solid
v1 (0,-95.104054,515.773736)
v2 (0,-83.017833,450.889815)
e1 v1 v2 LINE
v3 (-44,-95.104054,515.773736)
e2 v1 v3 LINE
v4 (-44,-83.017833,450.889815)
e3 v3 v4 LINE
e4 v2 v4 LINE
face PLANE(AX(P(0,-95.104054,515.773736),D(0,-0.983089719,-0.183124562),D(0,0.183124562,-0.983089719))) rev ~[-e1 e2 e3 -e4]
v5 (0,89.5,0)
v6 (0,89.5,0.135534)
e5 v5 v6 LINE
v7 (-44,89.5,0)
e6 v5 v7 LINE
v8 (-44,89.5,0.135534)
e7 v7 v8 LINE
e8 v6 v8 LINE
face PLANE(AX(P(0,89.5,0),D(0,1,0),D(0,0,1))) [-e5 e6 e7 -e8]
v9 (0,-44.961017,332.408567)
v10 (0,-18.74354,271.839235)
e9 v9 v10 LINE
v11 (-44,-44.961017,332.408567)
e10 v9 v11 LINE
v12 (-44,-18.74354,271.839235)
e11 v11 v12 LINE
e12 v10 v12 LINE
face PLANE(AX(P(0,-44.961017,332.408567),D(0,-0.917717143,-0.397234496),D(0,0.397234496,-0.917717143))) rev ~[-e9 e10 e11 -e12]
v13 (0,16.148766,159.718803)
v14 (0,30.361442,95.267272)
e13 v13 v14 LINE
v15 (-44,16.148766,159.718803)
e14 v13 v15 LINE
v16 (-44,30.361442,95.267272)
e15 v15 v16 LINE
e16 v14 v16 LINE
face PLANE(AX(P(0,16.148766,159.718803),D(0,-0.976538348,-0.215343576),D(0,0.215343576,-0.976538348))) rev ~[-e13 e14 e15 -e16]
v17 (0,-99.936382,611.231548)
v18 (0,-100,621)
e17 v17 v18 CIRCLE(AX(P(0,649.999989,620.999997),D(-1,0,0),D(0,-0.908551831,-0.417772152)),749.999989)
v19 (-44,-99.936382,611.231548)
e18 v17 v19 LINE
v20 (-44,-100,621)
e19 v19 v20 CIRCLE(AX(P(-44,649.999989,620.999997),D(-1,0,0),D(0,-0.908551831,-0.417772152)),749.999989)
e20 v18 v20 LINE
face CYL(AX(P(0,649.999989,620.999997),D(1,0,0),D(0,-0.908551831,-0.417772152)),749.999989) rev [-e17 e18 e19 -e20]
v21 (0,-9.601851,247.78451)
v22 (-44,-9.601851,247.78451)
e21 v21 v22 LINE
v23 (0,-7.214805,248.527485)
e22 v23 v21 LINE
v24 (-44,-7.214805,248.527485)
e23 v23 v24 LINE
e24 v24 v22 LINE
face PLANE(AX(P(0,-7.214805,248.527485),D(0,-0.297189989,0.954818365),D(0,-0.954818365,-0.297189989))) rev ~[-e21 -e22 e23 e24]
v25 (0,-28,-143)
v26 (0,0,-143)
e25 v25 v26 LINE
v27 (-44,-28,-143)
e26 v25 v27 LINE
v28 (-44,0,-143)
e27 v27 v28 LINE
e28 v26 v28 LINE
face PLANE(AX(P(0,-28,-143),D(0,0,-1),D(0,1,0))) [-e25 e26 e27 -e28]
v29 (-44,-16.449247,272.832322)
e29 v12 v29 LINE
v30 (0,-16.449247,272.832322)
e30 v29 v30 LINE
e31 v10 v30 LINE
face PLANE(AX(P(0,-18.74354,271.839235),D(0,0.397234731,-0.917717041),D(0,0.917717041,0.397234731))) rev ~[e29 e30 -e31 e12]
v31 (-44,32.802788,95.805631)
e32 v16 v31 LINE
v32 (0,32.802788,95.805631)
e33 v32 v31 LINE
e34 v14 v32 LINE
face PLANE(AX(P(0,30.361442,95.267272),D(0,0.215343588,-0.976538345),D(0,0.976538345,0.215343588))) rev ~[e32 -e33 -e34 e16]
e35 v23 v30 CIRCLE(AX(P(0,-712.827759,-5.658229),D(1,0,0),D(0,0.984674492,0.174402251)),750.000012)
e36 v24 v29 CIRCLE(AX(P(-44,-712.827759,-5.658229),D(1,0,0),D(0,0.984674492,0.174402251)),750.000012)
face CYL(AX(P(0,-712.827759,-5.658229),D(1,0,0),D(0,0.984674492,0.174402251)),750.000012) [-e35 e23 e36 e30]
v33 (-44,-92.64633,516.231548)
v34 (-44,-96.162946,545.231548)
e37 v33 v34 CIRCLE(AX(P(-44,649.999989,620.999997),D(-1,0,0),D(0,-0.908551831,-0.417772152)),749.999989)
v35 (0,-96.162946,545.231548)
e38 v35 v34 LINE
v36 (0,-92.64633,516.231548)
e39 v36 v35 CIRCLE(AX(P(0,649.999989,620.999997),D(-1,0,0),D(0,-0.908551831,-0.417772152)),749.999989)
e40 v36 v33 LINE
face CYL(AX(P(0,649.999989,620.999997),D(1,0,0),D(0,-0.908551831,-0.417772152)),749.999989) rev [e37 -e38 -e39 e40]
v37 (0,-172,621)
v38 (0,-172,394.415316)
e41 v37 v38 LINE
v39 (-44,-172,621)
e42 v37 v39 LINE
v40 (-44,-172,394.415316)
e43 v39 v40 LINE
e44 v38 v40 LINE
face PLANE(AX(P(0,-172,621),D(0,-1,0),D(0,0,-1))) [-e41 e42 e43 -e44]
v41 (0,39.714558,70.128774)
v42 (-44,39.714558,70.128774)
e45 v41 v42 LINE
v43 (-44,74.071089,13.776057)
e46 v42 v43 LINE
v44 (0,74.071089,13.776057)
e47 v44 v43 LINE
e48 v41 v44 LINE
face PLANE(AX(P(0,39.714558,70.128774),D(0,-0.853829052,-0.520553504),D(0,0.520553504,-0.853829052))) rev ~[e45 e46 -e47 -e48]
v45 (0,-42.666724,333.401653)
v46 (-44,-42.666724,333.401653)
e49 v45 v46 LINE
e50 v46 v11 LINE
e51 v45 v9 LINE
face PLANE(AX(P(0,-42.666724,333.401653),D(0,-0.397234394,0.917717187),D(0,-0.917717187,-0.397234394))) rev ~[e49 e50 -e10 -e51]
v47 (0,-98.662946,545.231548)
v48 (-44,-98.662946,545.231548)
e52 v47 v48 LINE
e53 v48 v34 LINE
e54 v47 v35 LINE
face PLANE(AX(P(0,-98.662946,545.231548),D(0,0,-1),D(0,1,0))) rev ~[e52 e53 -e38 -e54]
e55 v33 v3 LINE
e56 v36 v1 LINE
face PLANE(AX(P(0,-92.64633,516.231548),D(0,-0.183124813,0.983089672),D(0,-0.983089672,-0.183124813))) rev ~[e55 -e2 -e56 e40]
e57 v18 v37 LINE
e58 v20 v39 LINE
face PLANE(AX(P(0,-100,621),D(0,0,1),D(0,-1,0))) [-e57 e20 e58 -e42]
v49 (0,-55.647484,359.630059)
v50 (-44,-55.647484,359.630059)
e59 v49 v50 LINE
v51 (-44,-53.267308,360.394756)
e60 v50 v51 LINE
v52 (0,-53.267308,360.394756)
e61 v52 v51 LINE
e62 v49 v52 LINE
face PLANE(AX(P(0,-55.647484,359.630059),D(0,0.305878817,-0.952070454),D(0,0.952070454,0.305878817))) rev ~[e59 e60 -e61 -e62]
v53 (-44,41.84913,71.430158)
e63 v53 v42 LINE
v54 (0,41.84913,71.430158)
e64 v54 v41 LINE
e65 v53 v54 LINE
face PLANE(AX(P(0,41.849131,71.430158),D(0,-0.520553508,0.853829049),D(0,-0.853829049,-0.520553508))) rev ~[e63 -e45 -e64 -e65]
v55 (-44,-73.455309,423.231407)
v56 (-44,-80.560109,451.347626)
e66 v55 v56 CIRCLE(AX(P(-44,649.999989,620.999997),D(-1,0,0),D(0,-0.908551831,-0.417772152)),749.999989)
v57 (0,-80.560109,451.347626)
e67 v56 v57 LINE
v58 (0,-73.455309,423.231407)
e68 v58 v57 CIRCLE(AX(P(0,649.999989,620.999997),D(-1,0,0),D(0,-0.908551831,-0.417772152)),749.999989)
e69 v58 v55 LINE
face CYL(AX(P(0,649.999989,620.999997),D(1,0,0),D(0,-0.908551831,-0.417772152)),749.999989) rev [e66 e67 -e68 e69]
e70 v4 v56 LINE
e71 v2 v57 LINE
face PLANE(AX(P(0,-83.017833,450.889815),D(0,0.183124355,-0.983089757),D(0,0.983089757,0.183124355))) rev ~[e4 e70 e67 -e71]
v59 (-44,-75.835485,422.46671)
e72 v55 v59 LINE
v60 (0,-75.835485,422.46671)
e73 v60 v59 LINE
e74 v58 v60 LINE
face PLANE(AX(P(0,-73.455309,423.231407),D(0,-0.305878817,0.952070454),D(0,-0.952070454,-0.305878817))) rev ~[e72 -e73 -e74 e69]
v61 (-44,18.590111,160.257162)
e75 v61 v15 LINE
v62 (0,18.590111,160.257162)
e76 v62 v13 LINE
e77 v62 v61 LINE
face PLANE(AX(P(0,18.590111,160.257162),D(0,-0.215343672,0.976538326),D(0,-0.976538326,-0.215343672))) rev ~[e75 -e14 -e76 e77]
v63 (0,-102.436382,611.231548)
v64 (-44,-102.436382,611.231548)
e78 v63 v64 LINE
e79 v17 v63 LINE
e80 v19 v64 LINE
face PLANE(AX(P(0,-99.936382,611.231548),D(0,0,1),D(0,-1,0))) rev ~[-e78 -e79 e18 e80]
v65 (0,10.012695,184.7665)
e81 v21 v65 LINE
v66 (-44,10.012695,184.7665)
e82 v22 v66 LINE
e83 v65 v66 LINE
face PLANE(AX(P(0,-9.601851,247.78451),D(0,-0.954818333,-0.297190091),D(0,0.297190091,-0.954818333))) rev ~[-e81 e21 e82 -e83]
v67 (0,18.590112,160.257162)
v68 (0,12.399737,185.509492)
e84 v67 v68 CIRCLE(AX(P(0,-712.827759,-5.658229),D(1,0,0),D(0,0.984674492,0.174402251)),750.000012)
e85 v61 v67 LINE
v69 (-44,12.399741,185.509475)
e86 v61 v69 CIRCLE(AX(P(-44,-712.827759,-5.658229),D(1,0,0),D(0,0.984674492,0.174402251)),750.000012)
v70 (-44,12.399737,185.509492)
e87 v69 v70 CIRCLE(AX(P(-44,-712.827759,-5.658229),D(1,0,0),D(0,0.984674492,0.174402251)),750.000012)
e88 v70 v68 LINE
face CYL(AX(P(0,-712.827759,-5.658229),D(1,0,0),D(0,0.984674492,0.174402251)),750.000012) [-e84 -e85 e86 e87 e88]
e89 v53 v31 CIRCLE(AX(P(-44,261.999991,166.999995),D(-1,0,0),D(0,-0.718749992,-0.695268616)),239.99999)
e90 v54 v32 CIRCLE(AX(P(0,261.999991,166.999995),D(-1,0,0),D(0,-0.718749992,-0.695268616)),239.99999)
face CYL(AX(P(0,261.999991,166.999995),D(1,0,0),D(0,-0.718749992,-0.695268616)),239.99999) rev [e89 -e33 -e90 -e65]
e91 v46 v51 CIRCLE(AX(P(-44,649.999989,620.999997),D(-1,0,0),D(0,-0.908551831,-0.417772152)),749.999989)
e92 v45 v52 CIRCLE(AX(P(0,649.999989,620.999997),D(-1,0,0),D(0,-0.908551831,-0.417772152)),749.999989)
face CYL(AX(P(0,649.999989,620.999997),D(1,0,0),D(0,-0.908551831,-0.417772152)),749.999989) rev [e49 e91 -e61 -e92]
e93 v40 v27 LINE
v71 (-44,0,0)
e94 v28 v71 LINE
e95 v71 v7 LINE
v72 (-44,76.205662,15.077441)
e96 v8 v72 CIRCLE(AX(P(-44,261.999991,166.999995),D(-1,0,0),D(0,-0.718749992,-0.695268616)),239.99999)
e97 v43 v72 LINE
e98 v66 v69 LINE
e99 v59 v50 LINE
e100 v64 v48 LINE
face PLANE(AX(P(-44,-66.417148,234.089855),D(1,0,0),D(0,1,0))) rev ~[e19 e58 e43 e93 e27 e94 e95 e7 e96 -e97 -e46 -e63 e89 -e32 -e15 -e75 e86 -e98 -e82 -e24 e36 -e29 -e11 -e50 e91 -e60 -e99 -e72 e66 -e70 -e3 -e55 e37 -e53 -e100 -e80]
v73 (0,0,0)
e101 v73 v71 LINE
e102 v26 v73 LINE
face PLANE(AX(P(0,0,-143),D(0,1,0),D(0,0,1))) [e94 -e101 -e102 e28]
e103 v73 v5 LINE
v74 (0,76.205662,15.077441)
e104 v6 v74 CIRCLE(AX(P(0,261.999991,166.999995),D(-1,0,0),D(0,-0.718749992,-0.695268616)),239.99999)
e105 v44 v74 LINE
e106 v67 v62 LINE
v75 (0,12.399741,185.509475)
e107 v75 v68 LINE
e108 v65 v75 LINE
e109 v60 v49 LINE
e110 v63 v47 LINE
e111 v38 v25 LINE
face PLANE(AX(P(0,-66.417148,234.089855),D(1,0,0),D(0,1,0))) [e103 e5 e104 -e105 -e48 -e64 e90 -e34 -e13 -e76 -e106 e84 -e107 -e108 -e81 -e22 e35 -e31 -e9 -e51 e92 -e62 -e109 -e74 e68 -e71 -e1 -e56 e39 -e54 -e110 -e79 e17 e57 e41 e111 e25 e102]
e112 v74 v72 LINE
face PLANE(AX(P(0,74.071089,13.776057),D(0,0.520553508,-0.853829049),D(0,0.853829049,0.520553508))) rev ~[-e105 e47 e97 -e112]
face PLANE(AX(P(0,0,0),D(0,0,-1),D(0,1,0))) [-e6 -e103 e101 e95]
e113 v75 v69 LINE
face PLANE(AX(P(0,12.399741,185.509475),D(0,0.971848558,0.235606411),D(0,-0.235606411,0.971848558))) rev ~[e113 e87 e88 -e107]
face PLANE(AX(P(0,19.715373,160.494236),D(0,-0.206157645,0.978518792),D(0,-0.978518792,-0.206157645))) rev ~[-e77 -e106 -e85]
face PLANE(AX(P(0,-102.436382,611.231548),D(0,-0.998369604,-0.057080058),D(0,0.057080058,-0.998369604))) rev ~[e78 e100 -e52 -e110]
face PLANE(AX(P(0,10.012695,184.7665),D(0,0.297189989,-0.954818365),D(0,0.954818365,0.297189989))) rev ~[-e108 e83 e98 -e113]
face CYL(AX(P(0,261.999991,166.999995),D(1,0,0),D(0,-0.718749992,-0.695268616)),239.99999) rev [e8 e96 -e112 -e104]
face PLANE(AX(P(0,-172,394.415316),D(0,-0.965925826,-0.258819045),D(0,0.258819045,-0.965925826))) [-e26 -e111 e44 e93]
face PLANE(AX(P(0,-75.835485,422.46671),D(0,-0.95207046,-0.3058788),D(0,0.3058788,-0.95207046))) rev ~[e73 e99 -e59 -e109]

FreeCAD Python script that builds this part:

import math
import FreeCAD as App
import Part
import Sketcher

V = App.Vector
Q = App.Units.Quantity


def add_polygon(sketch, points):
    """Adds a closed chain of lines whose ends are joined by coincident constraints."""
    first, n = sketch.GeometryCount, len(points)
    for a, b in zip(points, points[1:] + points[:1]):
        sketch.addGeometry(Part.LineSegment(App.Vector(*a, 0), App.Vector(*b, 0)), False)
    for i in range(n):
        sketch.addConstraint(Sketcher.Constraint("Coincident", first + i, 2, first + (i + 1) % n, 1))

doc = App.newDocument("Part")
body = doc.addObject("PartDesign::Body", "Body")

sketch1 = body.newObject("Sketcher::SketchObject", "Sketch")
sketch1.AttachmentSupport = (doc.getObject("YZ_Plane"), [""])
sketch1.MapMode = "FlatFace"
sketch1.addGeometry([
    Part.LineSegment(V(0, -143, 0), V(0, 0, 0)),
    Part.LineSegment(V(0, 0, 0), V(89.5, 0, 0)),
    Part.LineSegment(V(89.5, 0, 0), V(89.5, 0.14, 0)),
    Part.ArcOfCircle(Part.Circle(V(262, 167, 0), V(0, 0, 1), 240), math.radians(-170), math.radians(-136)),
    Part.ArcOfCircle(Part.Circle(V(-712.83, -5.66, 0), V(0, 0, 1), 750), math.radians(10.04), math.radians(24.69)),
    Part.ArcOfCircle(Part.Circle(V(650, 621, 0), V(0, 0, 1), 750), math.radians(180), math.radians(205)),
    Part.LineSegment(V(-100, 621, 0), V(-172, 621, 0)),
    Part.LineSegment(V(-172, 621, 0), V(-172, 394.42, 0)),
    Part.LineSegment(V(-172, 394.42, 0), V(-28, -143, 0)),
    Part.LineSegment(V(-28, -143, 0), V(0, -143, 0)),
], False)
sketch1.addConstraint([
    Sketcher.Constraint("Coincident", 0, 2, 1, 1),
    Sketcher.Constraint("Coincident", 1, 2, 2, 1),
    Sketcher.Constraint("Coincident", 2, 2, 3, 2),
    Sketcher.Constraint("Tangent", 3, 1, 4, 1),
    Sketcher.Constraint("Tangent", 4, 2, 5, 2),
    Sketcher.Constraint("Coincident", 5, 1, 6, 1),
    Sketcher.Constraint("Coincident", 6, 2, 7, 1),
    Sketcher.Constraint("Coincident", 7, 2, 8, 1),
    Sketcher.Constraint("Coincident", 8, 2, 9, 1),
    Sketcher.Constraint("Coincident", 9, 2, 0, 1),
    Sketcher.Constraint("Vertical", 0),
    Sketcher.Constraint("Horizontal", 1),
    Sketcher.Constraint("Vertical", 2),
    Sketcher.Constraint("Horizontal", 6),
    Sketcher.Constraint("Vertical", 7),
    Sketcher.Constraint("Horizontal", 9),
    Sketcher.Constraint("Coincident", 0, 2, -1, 1),
    Sketcher.Constraint("DistanceX", 6, 2, 6, 1, 72.0),
    Sketcher.Constraint("DistanceX", 9, 1, 9, 2, 28.0),
    Sketcher.Constraint("DistanceY", 0, 1, 0, 2, 143.0),
    Sketcher.Constraint("Angle", 8, Q("-75 deg")),
    Sketcher.Constraint("DistanceX", 1, 1, 1, 2, 89.5),
    Sketcher.Constraint("DistanceX", 5, 1, -1, 1, 100.0),
    Sketcher.Constraint("DistanceY", -1, 1, 6, 2, 621.0),
    Sketcher.Constraint("DistanceX", 3, 3, 5, 3, 387.999999),
    Sketcher.Constraint("Radius", 3, 239.99999),
    Sketcher.Constraint("Radius", 5, 749.999989),
    Sketcher.Constraint("Radius", 4, 750.000012),
    Sketcher.Constraint("DistanceY", 2, 1, 2, 2, 0.135534),
    Sketcher.Constraint("DistanceX", 4, 3, -1, 1, 712.827759),
])
pad1 = body.newObject("PartDesign::Pad", "Pad")
pad1.Profile = sketch1
pad1.Length = 44
pad1.Reversed = True

sketch2 = body.newObject("Sketcher::SketchObject", "Sketch001")
sketch2.AttachmentSupport = (doc.getObject("YZ_Plane"), [""])
sketch2.MapMode = "FlatFace"
add_polygon(sketch2, [(74.1, 13.8), (76.2, 15.1), (41.8, 71.4), (39.7, 70.1)])
add_polygon(sketch2, [(30.4, 95.3), (32.8, 95.8), (19.7, 160.5), (18.6, 160.3), (16.1, 159.7)])
add_polygon(sketch2, [(10, 184.8), (12.4, 185.5), (-3.2, 249.8), (-7.2, 248.5), (-9.6, 247.8)])
add_polygon(sketch2, [(-18.7, 271.8), (-16.4, 272.8), (-40.2, 334.5), (-42.7, 333.4), (-45, 332.4)])
add_polygon(sketch2, [(-55.6, 359.6), (-53.3, 360.4), (-73.5, 423.2), (-75.8, 422.5)])
add_polygon(sketch2, [(-92.6, 516.2), (-95.1, 515.8), (-83, 450.9), (-80.6, 451.3)])
add_polygon(sketch2, [(-98.7, 545.2), (-96.2, 545.2), (-99.9, 611.2), (-102.4, 611.2)])
sketch2.addConstraint([
    Sketcher.Constraint("Horizontal", 27),
    Sketcher.Constraint("Horizontal", 29),
    Sketcher.Constraint("Perpendicular", 0, 1),
    Sketcher.Constraint("Perpendicular", 1, 2),
    Sketcher.Constraint("Perpendicular", 2, 3),
    Sketcher.Constraint("Parallel", 4, 7),
    Sketcher.Constraint("Perpendicular", 7, 8),
    Sketcher.Constraint("Parallel", 9, 12),
    Sketcher.Constraint("Perpendicular", 12, 13),
    Sketcher.Constraint("Parallel", 14, 16),
    Sketcher.Constraint("Parallel", 16, 17),
    Sketcher.Constraint("Perpendicular", 17, 18),
    Sketcher.Constraint("Perpendicular", 19, 20),
    Sketcher.Constraint("Perpendicular", 20, 21),
    Sketcher.Constraint("Perpendicular", 21, 22),
    Sketcher.Constraint("Perpendicular", 23, 24),
    Sketcher.Constraint("Perpendicular", 24, 25),
    Sketcher.Constraint("Perpendicular", 25, 26),
    Sketcher.Constraint("Parallel", 28, 30),
    Sketcher.Constraint("Equal", 2, 4),
    Sketcher.Constraint("Equal", 4, 7),
    Sketcher.Constraint("Equal", 3, 8),
    Sketcher.Constraint("Equal", 7, 9),
    Sketcher.Constraint("Equal", 9, 12),
    Sketcher.Constraint("Equal", 8, 13),
    Sketcher.Constraint("Equal", 12, 14),
    Sketcher.Constraint("Equal", 14, 17),
    Sketcher.Constraint("Equal", 13, 18),
    Sketcher.Constraint("Equal", 17, 19),
    Sketcher.Constraint("Equal", 18, 20),
    Sketcher.Constraint("Equal", 21, 23),
    Sketcher.Constraint("Equal", 22, 24),
    Sketcher.Constraint("Distance", 1, 66.0),
    Sketcher.Constraint("DistanceX", 27, 1, 27, 2, 2.5),
    Sketcher.Constraint("DistanceY", 26, 2, 27, 2, 29.0),
    Sketcher.Constraint("DistanceY", 27, 2, 28, 2, 66.0),
    Sketcher.Constraint("Distance", 0, 2.5),
    Sketcher.Constraint("DistanceX", 17, 2, 15, 2, 4.776002),
    Sketcher.Constraint("DistanceX", 20, 2, 19, 2, 20.188001),
    Sketcher.Constraint("DistanceY", -1, 1, 13, 2, 184.7665),
    Sketcher.Constraint("DistanceY", 3, 2, 1, 2, 57.654101),
    Sketcher.Constraint("DistanceX", 4, 2, 3, 2, 41.268301),
    Sketcher.Constraint("DistanceX", 9, 2, 8, 2, 17.961701),
    Sketcher.Constraint("DistanceY", 6, 2, 10, 2, 89.569398),
    Sketcher.Constraint("DistanceX", 10, 2, 5, 2, 22.9081),
    Sketcher.Constraint("DistanceX", 25, 2, 20, 2, 7.104799),
    Sketcher.Constraint("Distance", 10, 66.180152),
    Sketcher.Constraint("Distance", 16, 2.70422),
    Sketcher.Constraint("Distance", 28, 66.107782),
    Sketcher.Constraint("DistanceY", -1, 1, 0, 2, 15.077441),
    Sketcher.Constraint("DistanceX", -1, 1, 1, 2, 41.849131),
    Sketcher.Constraint("DistanceY", -1, 1, 4, 2, 95.805631),
    Sketcher.Constraint("DistanceX", -1, 1, 6, 2, 18.590111),
    Sketcher.Constraint("DistanceX", 12, 2, -1, 1, 9.601851),
    Sketcher.Constraint("DistanceY", -1, 1, 14, 2, 272.832322),
    Sketcher.Constraint("DistanceX", 18, 2, -1, 1, 18.74354),
    Sketcher.Constraint("DistanceX", 20, 2, -1, 1, 73.455309),
    Sketcher.Constraint("DistanceY", -1, 1, 21, 2, 422.46671),
    Sketcher.Constraint("DistanceX", 26, 2, -1, 1, 92.64633),
    Sketcher.Constraint("DistanceY", -1, 1, 26, 2, 516.231548),
    Sketcher.Constraint("DistanceX", 28, 2, -1, 1, 99.936382),
    Sketcher.Constraint("DistanceY", 2, 2, 5, 2, 90.365462),
])
pocket1 = body.newObject("PartDesign::Pocket", "Pocket")
pocket1.Profile = sketch2
pocket1.Type = "ThroughAll"

doc.recompute()
